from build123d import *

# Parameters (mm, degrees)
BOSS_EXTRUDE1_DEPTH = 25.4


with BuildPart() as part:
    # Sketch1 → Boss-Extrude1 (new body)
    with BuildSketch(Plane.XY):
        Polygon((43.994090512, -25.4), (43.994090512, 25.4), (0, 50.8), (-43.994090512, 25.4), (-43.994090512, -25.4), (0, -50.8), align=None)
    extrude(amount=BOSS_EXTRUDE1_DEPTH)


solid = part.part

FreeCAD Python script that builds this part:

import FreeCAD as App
import Part
import Sketcher
Q = App.Units.Quantity

doc = App.newDocument("Part")
body = doc.addObject("PartDesign::Body", "Body")

sketch1 = body.newObject("Sketcher::SketchObject", "Sketch")
sketch1.AttachmentSupport = (doc.getObject("XY_Plane"), [""])
sketch1.MapMode = "FlatFace"
sketch1.addGeometry([
    Part.LineSegment(App.Vector(44, -25, 0), App.Vector(44, 25, 0)),
    Part.LineSegment(App.Vector(44, 25, 0), App.Vector(0, 51, 0)),
    Part.LineSegment(App.Vector(0, 51, 0), App.Vector(-44, 25, 0)),
    Part.LineSegment(App.Vector(-44, 25, 0), App.Vector(-44, -25, 0)),
    Part.LineSegment(App.Vector(-44, -25, 0), App.Vector(0, -51, 0)),
    Part.LineSegment(App.Vector(0, -51, 0), App.Vector(44, -25, 0)),
], False)
sketch1.addConstraint([
    Sketcher.Constraint("Coincident", 0, 2, 1, 1),
    Sketcher.Constraint("Coincident", 1, 2, 2, 1),
    Sketcher.Constraint("Coincident", 2, 2, 3, 1),
    Sketcher.Constraint("Coincident", 3, 2, 4, 1),
    Sketcher.Constraint("Coincident", 4, 2, 5, 1),
    Sketcher.Constraint("Coincident", 5, 2, 0, 1),
    Sketcher.Constraint("Vertical", 0),
    Sketcher.Constraint("Vertical", 3),
    Sketcher.Constraint("Symmetric", 0, 2, 3, 2, -1, 1),
    Sketcher.Constraint("Symmetric", 1, 2, 4, 2, -1, 1),
    Sketcher.Constraint("PointOnObject", 1, 2, -2),
    Sketcher.Constraint("Parallel", 2, 5),
    Sketcher.Constraint("Horizontal", 0, 2, 2, 2),
    Sketcher.Constraint("DistanceY", 0, 1, 0, 2, Q("2 in")),
    Sketcher.Constraint("Distance", 1, Q("2 in")),
    Sketcher.Constraint("DistanceY", -1, 1, 1, 2, Q("2 in")),
])
pad1 = body.newObject("PartDesign::Pad", "Pad")
pad1.Profile = sketch1
pad1.Length = Q("1 in")

doc.recompute()
